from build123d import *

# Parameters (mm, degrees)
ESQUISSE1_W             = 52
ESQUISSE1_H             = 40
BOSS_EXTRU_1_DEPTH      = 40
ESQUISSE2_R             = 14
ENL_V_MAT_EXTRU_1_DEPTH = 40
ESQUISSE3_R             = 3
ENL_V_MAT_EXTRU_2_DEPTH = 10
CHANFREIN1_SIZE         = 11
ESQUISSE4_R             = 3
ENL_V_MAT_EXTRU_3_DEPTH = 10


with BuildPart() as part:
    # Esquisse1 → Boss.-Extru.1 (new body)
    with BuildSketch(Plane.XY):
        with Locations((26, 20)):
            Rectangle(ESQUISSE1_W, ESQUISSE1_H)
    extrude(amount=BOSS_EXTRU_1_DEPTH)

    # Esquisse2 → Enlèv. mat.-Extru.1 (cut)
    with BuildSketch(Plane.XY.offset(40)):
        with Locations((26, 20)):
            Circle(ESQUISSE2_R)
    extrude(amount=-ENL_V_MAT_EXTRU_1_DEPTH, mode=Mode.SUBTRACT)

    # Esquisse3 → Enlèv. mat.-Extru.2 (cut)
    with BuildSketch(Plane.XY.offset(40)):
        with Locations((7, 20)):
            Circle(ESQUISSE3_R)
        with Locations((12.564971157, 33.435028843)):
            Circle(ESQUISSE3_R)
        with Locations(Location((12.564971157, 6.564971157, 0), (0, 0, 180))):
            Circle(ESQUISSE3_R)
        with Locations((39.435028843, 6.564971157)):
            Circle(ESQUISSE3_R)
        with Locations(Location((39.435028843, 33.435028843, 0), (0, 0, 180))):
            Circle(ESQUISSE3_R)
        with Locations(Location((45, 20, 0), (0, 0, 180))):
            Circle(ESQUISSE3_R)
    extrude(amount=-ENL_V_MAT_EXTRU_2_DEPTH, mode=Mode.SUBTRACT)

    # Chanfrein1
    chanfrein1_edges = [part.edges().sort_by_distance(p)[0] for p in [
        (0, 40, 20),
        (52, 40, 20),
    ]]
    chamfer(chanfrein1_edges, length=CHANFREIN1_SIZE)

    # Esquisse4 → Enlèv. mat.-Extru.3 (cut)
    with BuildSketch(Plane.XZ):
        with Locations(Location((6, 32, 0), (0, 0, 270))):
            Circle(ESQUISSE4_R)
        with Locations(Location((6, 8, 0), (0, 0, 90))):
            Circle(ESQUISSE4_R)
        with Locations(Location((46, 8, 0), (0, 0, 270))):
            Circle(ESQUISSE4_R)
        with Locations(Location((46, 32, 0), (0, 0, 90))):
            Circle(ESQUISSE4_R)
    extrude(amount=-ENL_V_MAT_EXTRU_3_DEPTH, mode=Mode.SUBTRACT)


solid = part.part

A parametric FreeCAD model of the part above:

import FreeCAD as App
import Part
import Sketcher


def edges_at(feature, points):
    """Names of the edges that pass closest to the given points."""
    edges = feature.Shape.Edges
    near = lambda p: min(range(len(edges)), key=lambda i: edges[i].distToShape(Part.Vertex(*p))[0])
    return sorted({f"Edge{near(p) + 1}" for p in points})

doc = App.newDocument("Part")
params = doc.addObject("Spreadsheet::Sheet", "Params")
for row, (alias, value) in enumerate([
    ("sketch1_width", "52 mm"),
    ("sketch1_height", "40 mm"),
    ("pad1_length", "40 mm"),
    ("sketch2_diameter", "28 mm"),
    ("pocket1_length", "40 mm"),
    ("sketch3_diameter", "6 mm"),
    ("pocket2_length", "10 mm"),
    ("chamfer_size", "11 mm"),
    ("sketch4_diameter", "6 mm"),
    ("pocket3_length", "10 mm"),
], start=1):
    params.set(f"A{row}", alias)
    params.set(f"B{row}", "=" + value)
    params.setAlias(f"B{row}", alias)

body = doc.addObject("PartDesign::Body", "Body")

sketch1 = body.newObject("Sketcher::SketchObject", "Sketch")
sketch1.AttachmentSupport = (doc.getObject("XY_Plane"), [""])
sketch1.MapMode = "FlatFace"
sketch1.addGeometry(Part.LineSegment(App.Vector(0, 40, 0), App.Vector(0, 0, 0)), False)
sketch1.addGeometry(Part.LineSegment(App.Vector(0, 0, 0), App.Vector(52, 0, 0)), False)
sketch1.addGeometry(Part.LineSegment(App.Vector(52, 0, 0), App.Vector(52, 40, 0)), False)
sketch1.addGeometry(Part.LineSegment(App.Vector(52, 40, 0), App.Vector(0, 40, 0)), False)
sketch1.addConstraint(Sketcher.Constraint("Coincident", 0, 2, 1, 1))
sketch1.addConstraint(Sketcher.Constraint("Coincident", 1, 2, 2, 1))
sketch1.addConstraint(Sketcher.Constraint("Coincident", 2, 2, 3, 1))
sketch1.addConstraint(Sketcher.Constraint("Coincident", 3, 2, 0, 1))
sketch1.addConstraint(Sketcher.Constraint("Vertical", 0))
sketch1.addConstraint(Sketcher.Constraint("Horizontal", 1))
sketch1.addConstraint(Sketcher.Constraint("Vertical", 2))
sketch1.addConstraint(Sketcher.Constraint("Horizontal", 3))
sketch1.addConstraint(Sketcher.Constraint("Coincident", 0, 2, -1, 1))
sketch1.addConstraint(Sketcher.Constraint("DistanceX", 1, 1, 1, 2, 52.0))
sketch1.addConstraint(Sketcher.Constraint("DistanceY", 0, 2, 0, 1, 40.0))
sketch1.setExpression("Constraints[9]", "Params.sketch1_width")
sketch1.setExpression("Constraints[10]", "Params.sketch1_height")
pad1 = body.newObject("PartDesign::Pad", "Pad")
pad1.Profile = sketch1
pad1.setExpression("Length", "Params.pad1_length")

sketch2 = body.newObject("Sketcher::SketchObject", "Sketch001")
sketch2.AttachmentSupport = (doc.getObject("XY_Plane"), [""])
sketch2.MapMode = "FlatFace"
sketch2.AttachmentOffset = App.Placement(App.Vector(0, 0, 40), App.Rotation())
sketch2.addGeometry(Part.Circle(App.Vector(26, 20, 0), App.Vector(0, 0, 1), 14), False)
sketch2.addConstraint(Sketcher.Constraint("Diameter", 0, 28.0))
sketch2.addConstraint(Sketcher.Constraint("DistanceX", -1, 1, 0, 3, 26.0))
sketch2.addConstraint(Sketcher.Constraint("DistanceY", -1, 1, 0, 3, 20.0))
sketch2.setExpression("Constraints[0]", "Params.sketch2_diameter")
pocket1 = body.newObject("PartDesign::Pocket", "Pocket")
pocket1.Profile = sketch2
pocket1.setExpression("Length", "Params.pocket1_length")

sketch3 = body.newObject("Sketcher::SketchObject", "Sketch002")
sketch3.AttachmentSupport = (doc.getObject("XY_Plane"), [""])
sketch3.MapMode = "FlatFace"
sketch3.AttachmentOffset = App.Placement(App.Vector(0, 0, 40), App.Rotation())
sketch3.addGeometry(Part.Circle(App.Vector(7, 20, 0), App.Vector(0, 0, 1), 3), False)
sketch3.addGeometry(Part.Circle(App.Vector(12.564971, 33.435029, 0), App.Vector(0, 0, 1), 3), False)
sketch3.addGeometry(Part.Circle(App.Vector(12.564971, 6.564971, 0), App.Vector(0, 0, 1), 3), False)
sketch3.addGeometry(Part.Circle(App.Vector(39.435029, 6.564971, 0), App.Vector(0, 0, 1), 3), False)
sketch3.addGeometry(Part.Circle(App.Vector(39.435029, 33.435029, 0), App.Vector(0, 0, 1), 3), False)
sketch3.addGeometry(Part.Circle(App.Vector(45, 20, 0), App.Vector(0, 0, 1), 3), False)
sketch3.addConstraint(Sketcher.Constraint("Equal", 0, 1))
sketch3.addConstraint(Sketcher.Constraint("Equal", 1, 2))
sketch3.addConstraint(Sketcher.Constraint("Equal", 2, 3))
sketch3.addConstraint(Sketcher.Constraint("Equal", 3, 4))
sketch3.addConstraint(Sketcher.Constraint("Equal", 4, 5))
sketch3.addConstraint(Sketcher.Constraint("Horizontal", 2, 3, 3, 3))
sketch3.addConstraint(Sketcher.Constraint("Horizontal", 1, 3, 4, 3))
sketch3.addConstraint(Sketcher.Constraint("Horizontal", 0, 3, 5, 3))
sketch3.addConstraint(Sketcher.Constraint("Vertical", 1, 3, 2, 3))
sketch3.addConstraint(Sketcher.Constraint("Vertical", 3, 3, 4, 3))
sketch3.addConstraint(Sketcher.Constraint("Diameter", 0, 6.0))
sketch3.addConstraint(Sketcher.Constraint("DistanceX", -1, 1, 0, 3, 7.0))
sketch3.addConstraint(Sketcher.Constraint("DistanceY", -1, 1, 0, 3, 20.0))
sketch3.addConstraint(Sketcher.Constraint("DistanceX", -1, 1, 5, 3, 45.0))
sketch3.addConstraint(Sketcher.Constraint("DistanceX", -1, 1, 1, 3, 12.564971))
sketch3.addConstraint(Sketcher.Constraint("DistanceY", -1, 1, 1, 3, 33.435029))
sketch3.addConstraint(Sketcher.Constraint("DistanceY", -1, 1, 2, 3, 6.564971))
sketch3.addConstraint(Sketcher.Constraint("DistanceX", -1, 1, 3, 3, 39.435029))
sketch3.setExpression("Constraints[10]", "Params.sketch3_diameter")
pocket2 = body.newObject("PartDesign::Pocket", "Pocket001")
pocket2.Profile = sketch3
pocket2.setExpression("Length", "Params.pocket2_length")
doc.recompute()

chamfer = body.newObject("PartDesign::Chamfer", "Chamfer")
chamfer.Base = (pocket2, edges_at(pocket2, [(0, 40, 20), (52, 40, 20)]))
chamfer.setExpression("Size", "Params.chamfer_size")

sketch4 = body.newObject("Sketcher::SketchObject", "Sketch003")
sketch4.AttachmentSupport = (doc.getObject("XZ_Plane"), [""])
sketch4.MapMode = "FlatFace"
sketch4.addGeometry(Part.Circle(App.Vector(6, 32, 0), App.Vector(0, 0, 1), 3), False)
sketch4.addGeometry(Part.Circle(App.Vector(6, 8, 0), App.Vector(0, 0, 1), 3), False)
sketch4.addGeometry(Part.Circle(App.Vector(46, 8, 0), App.Vector(0, 0, 1), 3), False)
sketch4.addGeometry(Part.Circle(App.Vector(46, 32, 0), App.Vector(0, 0, 1), 3), False)
sketch4.addConstraint(Sketcher.Constraint("Equal", 0, 1))
sketch4.addConstraint(Sketcher.Constraint("Equal", 1, 2))
sketch4.addConstraint(Sketcher.Constraint("Equal", 2, 3))
sketch4.addConstraint(Sketcher.Constraint("Horizontal", 1, 3, 2, 3))
sketch4.addConstraint(Sketcher.Constraint("Horizontal", 0, 3, 3, 3))
sketch4.addConstraint(Sketcher.Constraint("Vertical", 0, 3, 1, 3))
sketch4.addConstraint(Sketcher.Constraint("Vertical", 2, 3, 3, 3))
sketch4.addConstraint(Sketcher.Constraint("Diameter", 0, 6.0))
sketch4.addConstraint(Sketcher.Constraint("DistanceX", -1, 1, 0, 3, 6.0))
sketch4.addConstraint(Sketcher.Constraint("DistanceY", -1, 1, 0, 3, 32.0))
sketch4.addConstraint(Sketcher.Constraint("DistanceY", -1, 1, 1, 3, 8.0))
sketch4.addConstraint(Sketcher.Constraint("DistanceX", -1, 1, 2, 3, 46.0))
sketch4.setExpression("Constraints[7]", "Params.sketch4_diameter")
pocket3 = body.newObject("PartDesign::Pocket", "Pocket002")
pocket3.Profile = sketch4
pocket3.setExpression("Length", "Params.pocket3_length")

doc.recompute()
